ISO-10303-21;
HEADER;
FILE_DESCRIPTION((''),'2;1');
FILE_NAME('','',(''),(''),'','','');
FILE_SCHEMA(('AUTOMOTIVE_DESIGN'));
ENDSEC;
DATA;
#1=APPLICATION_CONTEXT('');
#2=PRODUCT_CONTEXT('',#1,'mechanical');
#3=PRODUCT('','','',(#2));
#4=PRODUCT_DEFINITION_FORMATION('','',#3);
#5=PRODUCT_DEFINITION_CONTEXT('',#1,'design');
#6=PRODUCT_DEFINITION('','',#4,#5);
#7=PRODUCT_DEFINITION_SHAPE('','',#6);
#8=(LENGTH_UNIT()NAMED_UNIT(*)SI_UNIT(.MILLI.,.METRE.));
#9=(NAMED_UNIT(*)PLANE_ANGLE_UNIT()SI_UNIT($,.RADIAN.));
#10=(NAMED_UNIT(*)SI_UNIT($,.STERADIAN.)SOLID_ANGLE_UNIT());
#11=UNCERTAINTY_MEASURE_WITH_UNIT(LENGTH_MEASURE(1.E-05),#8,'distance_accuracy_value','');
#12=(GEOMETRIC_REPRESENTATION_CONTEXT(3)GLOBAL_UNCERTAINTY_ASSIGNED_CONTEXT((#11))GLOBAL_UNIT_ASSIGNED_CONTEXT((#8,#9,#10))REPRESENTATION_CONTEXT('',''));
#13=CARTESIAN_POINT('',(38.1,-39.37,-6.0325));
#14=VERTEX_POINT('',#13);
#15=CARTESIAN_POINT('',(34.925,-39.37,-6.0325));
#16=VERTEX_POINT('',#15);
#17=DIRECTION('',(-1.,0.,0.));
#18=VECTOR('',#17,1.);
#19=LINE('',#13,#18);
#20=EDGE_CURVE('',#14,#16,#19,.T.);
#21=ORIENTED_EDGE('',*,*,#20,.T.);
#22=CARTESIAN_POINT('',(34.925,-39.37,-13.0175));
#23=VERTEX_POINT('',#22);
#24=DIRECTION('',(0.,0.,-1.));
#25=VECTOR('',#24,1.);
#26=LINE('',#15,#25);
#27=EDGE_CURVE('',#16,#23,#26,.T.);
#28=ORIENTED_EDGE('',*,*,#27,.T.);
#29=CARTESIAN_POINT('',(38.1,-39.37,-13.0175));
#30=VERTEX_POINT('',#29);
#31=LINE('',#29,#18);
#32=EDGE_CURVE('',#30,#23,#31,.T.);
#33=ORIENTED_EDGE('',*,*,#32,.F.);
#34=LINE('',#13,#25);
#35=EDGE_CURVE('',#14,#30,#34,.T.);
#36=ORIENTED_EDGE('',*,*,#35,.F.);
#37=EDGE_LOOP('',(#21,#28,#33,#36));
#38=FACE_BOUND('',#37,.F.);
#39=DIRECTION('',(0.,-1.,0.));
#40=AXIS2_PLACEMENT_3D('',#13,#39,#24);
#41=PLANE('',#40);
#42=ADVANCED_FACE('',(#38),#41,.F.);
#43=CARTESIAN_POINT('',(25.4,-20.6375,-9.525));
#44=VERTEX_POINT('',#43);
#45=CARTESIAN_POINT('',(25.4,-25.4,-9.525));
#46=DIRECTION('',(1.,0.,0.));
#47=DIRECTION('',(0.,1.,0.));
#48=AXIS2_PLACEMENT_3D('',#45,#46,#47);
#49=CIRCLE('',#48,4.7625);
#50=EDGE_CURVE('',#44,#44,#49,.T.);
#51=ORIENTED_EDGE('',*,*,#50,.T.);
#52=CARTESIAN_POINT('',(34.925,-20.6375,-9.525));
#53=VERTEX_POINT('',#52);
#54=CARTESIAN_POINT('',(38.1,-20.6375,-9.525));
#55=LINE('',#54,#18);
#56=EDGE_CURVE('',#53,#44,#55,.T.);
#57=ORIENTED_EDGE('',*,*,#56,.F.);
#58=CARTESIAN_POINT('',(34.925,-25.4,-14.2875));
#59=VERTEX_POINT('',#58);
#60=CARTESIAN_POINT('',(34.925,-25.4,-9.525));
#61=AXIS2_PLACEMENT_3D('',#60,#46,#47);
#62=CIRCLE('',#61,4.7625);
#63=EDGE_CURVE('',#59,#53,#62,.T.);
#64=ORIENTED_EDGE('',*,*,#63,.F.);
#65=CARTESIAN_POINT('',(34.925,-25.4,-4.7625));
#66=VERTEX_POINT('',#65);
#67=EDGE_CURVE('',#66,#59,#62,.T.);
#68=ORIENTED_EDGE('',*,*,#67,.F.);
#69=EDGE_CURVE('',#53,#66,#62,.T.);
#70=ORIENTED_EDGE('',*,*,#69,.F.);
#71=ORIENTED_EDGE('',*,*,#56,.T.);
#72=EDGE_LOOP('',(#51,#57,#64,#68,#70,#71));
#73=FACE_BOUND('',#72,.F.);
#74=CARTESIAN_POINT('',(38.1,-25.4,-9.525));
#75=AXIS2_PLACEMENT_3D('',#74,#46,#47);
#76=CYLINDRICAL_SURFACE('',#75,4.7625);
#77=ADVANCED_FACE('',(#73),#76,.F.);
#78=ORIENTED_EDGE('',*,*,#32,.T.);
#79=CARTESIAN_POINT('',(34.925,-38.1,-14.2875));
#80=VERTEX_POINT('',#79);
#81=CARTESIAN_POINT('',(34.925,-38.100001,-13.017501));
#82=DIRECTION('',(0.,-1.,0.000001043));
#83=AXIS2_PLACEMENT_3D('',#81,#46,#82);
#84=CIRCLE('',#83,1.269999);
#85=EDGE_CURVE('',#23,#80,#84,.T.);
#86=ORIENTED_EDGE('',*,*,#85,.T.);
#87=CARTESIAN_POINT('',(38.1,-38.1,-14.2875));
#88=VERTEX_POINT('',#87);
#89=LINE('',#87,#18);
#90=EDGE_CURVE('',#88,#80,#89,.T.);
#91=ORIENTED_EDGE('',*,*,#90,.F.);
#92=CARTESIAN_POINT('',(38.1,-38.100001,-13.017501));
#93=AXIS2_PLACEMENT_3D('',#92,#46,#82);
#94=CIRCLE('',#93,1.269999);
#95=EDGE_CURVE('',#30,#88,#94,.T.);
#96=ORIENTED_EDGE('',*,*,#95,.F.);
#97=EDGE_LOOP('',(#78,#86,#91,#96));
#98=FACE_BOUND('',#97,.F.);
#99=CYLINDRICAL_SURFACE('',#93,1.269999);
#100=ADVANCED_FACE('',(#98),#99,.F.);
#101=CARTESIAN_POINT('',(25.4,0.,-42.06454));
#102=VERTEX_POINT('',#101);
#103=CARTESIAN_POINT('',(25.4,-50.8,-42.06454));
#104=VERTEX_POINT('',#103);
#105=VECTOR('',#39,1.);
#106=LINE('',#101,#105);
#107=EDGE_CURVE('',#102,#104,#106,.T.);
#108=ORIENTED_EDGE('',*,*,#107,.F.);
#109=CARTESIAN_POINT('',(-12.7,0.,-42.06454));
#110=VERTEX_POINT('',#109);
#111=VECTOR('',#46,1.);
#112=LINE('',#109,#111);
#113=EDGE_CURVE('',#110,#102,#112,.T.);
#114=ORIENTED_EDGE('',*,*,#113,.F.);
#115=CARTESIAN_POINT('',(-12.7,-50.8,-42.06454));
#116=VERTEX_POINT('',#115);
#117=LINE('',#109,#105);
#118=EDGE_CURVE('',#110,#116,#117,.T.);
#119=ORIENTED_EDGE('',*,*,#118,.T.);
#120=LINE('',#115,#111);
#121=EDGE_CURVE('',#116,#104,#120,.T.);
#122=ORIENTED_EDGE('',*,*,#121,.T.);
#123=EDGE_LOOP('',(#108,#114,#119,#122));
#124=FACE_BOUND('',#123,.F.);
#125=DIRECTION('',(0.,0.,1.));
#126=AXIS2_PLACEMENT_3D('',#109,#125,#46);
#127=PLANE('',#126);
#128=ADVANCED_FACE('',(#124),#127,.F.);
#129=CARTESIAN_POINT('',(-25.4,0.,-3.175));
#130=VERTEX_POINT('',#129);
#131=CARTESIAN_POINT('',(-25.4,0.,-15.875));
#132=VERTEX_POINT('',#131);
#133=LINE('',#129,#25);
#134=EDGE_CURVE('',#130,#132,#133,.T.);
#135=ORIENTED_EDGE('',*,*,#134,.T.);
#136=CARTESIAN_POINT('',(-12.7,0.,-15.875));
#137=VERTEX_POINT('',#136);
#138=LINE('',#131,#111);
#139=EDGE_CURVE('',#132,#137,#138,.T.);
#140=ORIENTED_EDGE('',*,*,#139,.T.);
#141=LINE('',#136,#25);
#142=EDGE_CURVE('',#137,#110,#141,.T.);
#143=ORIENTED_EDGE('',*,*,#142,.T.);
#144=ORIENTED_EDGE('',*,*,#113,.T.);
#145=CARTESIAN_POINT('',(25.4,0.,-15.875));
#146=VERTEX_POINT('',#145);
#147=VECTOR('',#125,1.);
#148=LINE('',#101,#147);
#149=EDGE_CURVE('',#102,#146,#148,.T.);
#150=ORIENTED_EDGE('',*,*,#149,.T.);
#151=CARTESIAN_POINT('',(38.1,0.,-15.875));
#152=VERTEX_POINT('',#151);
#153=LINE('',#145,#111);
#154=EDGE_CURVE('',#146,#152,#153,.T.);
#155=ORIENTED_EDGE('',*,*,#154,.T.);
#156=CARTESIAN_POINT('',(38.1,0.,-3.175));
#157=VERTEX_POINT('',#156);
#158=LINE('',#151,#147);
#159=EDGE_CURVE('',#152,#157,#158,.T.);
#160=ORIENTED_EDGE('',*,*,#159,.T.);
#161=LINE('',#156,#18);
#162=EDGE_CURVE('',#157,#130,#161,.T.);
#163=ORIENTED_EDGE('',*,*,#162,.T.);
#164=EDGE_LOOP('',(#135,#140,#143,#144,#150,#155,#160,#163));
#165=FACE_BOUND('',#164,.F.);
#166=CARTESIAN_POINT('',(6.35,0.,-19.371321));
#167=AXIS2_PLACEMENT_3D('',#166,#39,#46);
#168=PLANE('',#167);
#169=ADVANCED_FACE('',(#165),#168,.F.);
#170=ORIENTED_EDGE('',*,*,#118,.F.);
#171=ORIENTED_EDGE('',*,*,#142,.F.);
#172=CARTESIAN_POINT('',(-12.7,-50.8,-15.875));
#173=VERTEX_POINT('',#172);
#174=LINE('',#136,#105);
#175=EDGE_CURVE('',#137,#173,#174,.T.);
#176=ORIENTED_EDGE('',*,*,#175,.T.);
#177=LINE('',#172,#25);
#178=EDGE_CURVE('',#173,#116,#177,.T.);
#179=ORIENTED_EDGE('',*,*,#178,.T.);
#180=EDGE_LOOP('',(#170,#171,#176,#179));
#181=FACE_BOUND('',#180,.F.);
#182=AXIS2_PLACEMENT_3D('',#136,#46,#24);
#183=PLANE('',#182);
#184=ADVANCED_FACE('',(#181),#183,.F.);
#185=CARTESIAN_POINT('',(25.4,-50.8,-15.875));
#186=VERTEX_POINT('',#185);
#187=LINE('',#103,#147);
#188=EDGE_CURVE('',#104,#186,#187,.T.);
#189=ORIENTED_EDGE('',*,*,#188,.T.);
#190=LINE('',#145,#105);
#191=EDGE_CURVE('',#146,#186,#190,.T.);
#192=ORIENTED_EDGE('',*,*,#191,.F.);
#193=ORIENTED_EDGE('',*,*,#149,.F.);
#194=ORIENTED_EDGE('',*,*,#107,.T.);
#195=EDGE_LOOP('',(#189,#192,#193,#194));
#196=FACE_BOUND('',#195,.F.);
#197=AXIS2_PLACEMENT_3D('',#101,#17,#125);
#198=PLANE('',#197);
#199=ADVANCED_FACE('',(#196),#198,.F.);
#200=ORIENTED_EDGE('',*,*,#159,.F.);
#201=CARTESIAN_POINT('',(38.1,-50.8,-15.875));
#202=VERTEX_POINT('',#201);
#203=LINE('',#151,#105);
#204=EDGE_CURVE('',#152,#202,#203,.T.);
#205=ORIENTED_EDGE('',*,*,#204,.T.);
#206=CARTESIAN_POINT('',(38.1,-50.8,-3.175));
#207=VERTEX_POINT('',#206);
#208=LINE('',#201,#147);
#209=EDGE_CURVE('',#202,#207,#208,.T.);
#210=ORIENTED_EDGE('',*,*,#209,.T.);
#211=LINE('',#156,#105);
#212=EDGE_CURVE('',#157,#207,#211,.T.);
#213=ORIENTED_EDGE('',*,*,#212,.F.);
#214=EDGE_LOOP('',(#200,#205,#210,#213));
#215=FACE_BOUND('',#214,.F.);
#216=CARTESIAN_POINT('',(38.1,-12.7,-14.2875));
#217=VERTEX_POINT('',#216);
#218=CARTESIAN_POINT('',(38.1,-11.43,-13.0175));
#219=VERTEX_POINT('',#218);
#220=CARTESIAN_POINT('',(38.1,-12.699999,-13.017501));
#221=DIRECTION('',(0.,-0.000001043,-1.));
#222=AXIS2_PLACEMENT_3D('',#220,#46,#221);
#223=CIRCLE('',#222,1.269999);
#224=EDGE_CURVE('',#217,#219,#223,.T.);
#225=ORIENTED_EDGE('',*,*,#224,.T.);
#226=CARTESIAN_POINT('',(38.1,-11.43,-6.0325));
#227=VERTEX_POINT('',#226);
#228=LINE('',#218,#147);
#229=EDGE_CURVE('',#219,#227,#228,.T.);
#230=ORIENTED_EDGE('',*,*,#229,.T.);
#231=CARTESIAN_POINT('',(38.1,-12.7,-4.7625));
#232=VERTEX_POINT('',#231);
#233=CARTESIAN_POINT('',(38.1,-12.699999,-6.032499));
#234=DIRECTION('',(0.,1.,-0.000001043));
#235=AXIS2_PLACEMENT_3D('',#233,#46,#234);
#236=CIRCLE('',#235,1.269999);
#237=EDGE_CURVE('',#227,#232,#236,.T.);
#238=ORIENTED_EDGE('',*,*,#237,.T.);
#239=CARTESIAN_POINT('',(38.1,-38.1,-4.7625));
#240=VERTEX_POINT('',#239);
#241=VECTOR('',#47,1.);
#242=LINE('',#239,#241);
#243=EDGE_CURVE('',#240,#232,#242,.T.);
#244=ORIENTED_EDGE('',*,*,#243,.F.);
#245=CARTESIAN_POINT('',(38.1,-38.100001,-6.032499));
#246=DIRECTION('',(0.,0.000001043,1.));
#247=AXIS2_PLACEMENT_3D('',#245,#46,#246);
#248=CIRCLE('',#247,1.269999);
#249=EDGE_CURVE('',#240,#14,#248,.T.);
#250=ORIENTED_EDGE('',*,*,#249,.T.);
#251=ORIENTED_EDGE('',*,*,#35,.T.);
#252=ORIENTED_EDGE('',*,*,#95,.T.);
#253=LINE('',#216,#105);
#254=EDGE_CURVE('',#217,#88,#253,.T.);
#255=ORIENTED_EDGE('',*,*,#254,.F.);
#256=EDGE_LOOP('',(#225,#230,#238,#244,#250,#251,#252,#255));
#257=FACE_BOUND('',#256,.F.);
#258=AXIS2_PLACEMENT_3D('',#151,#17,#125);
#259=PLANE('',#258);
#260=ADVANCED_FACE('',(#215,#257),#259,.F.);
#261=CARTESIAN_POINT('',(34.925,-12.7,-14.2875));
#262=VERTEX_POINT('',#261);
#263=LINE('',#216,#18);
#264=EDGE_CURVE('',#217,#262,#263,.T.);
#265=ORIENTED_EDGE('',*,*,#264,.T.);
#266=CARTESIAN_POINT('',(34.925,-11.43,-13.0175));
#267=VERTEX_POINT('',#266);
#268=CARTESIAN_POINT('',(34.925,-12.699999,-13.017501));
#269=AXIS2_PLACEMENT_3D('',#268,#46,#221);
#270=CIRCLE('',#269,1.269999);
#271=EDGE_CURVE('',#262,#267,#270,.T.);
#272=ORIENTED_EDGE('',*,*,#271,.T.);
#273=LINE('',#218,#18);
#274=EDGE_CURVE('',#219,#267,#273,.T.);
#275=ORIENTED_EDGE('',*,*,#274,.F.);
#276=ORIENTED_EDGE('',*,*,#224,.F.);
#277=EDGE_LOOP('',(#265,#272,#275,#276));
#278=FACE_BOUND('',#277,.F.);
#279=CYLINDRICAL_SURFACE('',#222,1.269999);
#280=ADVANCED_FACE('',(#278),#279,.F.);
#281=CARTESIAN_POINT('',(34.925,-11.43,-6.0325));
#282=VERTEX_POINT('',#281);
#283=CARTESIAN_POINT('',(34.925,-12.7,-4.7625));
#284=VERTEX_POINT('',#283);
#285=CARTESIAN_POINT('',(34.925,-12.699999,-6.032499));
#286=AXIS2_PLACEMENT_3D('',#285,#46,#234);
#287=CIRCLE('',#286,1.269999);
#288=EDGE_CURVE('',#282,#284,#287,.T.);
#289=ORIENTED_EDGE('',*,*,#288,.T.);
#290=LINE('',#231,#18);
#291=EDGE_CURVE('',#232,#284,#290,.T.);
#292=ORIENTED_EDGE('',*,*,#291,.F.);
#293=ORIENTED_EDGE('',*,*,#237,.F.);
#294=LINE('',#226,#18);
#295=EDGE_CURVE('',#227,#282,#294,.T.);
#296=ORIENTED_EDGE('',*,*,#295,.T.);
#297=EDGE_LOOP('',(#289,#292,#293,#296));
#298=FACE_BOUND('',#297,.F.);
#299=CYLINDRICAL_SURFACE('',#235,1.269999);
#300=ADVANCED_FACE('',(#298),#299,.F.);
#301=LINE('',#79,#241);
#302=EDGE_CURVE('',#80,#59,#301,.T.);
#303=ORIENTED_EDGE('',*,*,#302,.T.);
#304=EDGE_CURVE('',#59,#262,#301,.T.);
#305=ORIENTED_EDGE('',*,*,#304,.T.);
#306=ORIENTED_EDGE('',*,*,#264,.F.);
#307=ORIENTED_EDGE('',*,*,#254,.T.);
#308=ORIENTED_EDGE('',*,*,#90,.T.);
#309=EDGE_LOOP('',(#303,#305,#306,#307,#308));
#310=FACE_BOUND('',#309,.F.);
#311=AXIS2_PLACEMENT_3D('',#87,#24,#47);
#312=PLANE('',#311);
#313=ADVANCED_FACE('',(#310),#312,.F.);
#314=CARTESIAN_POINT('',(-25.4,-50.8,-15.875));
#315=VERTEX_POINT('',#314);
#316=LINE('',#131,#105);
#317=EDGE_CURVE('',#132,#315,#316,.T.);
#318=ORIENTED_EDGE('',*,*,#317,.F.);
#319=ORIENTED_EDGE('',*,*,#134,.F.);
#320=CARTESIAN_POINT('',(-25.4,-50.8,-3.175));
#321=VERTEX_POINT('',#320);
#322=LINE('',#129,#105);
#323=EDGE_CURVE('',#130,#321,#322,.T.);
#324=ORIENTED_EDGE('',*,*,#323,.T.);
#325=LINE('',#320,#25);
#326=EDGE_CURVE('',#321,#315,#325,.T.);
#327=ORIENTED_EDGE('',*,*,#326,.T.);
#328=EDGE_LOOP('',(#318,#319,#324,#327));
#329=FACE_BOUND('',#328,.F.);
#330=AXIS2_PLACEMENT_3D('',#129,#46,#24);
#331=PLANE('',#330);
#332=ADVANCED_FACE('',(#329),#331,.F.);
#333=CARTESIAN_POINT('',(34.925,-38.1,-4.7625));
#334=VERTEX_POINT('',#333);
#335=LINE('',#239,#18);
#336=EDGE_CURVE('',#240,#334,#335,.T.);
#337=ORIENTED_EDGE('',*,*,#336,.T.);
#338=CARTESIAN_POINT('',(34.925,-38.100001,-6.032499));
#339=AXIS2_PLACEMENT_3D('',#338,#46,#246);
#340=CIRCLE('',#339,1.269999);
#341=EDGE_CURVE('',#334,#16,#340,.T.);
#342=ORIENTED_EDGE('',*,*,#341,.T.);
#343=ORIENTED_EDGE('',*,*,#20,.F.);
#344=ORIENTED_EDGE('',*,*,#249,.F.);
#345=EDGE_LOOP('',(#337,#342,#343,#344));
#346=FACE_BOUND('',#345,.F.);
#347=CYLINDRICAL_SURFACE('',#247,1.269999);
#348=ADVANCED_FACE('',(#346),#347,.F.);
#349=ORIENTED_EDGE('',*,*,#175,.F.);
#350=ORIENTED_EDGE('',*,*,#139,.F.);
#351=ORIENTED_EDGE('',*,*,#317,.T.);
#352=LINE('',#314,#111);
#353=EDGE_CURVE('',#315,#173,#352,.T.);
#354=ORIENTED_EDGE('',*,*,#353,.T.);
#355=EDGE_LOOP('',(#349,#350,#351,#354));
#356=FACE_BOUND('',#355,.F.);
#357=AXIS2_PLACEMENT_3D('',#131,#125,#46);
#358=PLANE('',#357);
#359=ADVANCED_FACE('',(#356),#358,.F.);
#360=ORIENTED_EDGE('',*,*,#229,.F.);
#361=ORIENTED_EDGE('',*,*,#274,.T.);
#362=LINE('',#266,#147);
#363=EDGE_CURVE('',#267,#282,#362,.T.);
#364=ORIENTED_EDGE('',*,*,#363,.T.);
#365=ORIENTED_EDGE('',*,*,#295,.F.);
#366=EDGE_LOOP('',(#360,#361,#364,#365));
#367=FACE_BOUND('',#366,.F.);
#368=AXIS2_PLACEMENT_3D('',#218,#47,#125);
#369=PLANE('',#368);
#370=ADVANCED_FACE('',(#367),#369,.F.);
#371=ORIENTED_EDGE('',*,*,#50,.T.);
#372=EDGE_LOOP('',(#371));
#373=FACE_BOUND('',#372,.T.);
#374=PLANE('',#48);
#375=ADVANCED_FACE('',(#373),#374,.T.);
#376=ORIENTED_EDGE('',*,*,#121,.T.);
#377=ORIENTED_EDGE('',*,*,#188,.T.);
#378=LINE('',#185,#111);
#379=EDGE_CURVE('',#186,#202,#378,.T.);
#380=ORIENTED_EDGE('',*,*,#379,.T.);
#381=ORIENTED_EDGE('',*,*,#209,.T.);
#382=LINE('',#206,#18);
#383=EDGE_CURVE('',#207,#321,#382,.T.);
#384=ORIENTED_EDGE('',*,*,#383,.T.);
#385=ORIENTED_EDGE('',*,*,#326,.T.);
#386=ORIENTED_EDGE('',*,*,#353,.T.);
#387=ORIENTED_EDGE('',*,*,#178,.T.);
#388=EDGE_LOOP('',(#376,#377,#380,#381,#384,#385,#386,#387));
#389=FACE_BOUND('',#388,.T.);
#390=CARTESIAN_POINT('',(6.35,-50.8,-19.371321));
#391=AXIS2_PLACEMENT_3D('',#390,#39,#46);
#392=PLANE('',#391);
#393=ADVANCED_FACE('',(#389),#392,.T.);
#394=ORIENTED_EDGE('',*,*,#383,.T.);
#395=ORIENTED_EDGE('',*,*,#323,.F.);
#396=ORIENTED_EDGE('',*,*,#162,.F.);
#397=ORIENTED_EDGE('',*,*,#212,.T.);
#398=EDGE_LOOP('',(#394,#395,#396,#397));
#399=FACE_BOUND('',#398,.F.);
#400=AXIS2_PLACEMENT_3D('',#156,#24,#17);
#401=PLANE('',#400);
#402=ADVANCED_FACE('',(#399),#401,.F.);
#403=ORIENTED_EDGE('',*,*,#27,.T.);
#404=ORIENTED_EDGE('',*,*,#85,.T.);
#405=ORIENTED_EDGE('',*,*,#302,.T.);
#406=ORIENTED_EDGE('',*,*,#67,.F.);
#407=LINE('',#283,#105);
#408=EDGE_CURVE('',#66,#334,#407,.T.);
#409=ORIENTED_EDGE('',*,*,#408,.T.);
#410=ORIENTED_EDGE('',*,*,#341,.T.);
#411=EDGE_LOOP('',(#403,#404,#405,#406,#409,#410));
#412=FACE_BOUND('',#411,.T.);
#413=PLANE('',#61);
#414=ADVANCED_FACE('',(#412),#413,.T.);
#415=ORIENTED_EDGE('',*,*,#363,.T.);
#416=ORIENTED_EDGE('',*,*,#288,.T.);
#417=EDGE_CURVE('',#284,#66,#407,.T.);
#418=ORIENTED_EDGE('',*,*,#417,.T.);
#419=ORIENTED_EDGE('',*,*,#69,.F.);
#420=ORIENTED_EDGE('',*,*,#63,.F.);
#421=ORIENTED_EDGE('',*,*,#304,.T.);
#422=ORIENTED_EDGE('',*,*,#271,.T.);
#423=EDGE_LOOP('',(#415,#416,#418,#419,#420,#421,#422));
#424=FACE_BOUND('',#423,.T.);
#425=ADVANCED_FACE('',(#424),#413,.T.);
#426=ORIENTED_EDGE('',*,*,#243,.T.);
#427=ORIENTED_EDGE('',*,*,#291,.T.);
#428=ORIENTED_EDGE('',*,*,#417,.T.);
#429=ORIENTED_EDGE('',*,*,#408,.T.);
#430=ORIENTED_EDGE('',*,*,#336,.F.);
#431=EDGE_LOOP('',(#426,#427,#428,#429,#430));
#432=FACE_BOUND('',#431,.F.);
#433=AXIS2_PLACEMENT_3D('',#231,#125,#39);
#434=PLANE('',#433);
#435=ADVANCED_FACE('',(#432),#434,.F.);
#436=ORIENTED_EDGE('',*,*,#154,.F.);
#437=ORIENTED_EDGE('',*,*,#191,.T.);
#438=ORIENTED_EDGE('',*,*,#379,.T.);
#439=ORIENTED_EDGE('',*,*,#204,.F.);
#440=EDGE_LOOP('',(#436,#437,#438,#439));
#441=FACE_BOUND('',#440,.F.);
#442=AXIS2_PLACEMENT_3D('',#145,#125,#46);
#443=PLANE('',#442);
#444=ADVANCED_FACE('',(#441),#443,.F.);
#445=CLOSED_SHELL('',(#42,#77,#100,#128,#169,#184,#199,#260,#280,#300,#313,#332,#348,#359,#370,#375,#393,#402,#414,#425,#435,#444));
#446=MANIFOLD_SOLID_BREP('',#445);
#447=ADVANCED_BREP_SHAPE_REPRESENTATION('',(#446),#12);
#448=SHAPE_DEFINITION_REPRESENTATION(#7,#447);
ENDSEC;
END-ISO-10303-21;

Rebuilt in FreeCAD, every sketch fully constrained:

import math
import FreeCAD as App
import Part
import Sketcher
Q = App.Units.Quantity

doc = App.newDocument("Part")
body = doc.addObject("PartDesign::Body", "Body")

sketch1 = body.newObject("Sketcher::SketchObject", "Sketch")
sketch1.AttachmentSupport = (doc.getObject("XZ_Plane"), [""])
sketch1.MapMode = "FlatFace"
sketch1.addGeometry([
    Part.LineSegment(App.Vector(38, -16, 0), App.Vector(38, -3, 0)),
    Part.LineSegment(App.Vector(38, -3, 0), App.Vector(-25, -3, 0)),
    Part.LineSegment(App.Vector(-25, -3, 0), App.Vector(-25, -16, 0)),
    Part.LineSegment(App.Vector(-25, -16, 0), App.Vector(-13, -16, 0)),
    Part.LineSegment(App.Vector(-13, -16, 0), App.Vector(-13, -42, 0)),
    Part.LineSegment(App.Vector(-13, -42, 0), App.Vector(25, -42, 0)),
    Part.LineSegment(App.Vector(25, -42, 0), App.Vector(25, -16, 0)),
    Part.LineSegment(App.Vector(25, -16, 0), App.Vector(38, -16, 0)),
], False)
sketch1.addConstraint([
    Sketcher.Constraint("Coincident", 0, 2, 1, 1),
    Sketcher.Constraint("Coincident", 1, 2, 2, 1),
    Sketcher.Constraint("Coincident", 2, 2, 3, 1),
    Sketcher.Constraint("Coincident", 3, 2, 4, 1),
    Sketcher.Constraint("Coincident", 4, 2, 5, 1),
    Sketcher.Constraint("Coincident", 5, 2, 6, 1),
    Sketcher.Constraint("Coincident", 6, 2, 7, 1),
    Sketcher.Constraint("Coincident", 7, 2, 0, 1),
    Sketcher.Constraint("Vertical", 0),
    Sketcher.Constraint("Horizontal", 1),
    Sketcher.Constraint("Vertical", 2),
    Sketcher.Constraint("Horizontal", 3),
    Sketcher.Constraint("Vertical", 4),
    Sketcher.Constraint("Horizontal", 5),
    Sketcher.Constraint("Vertical", 6),
    Sketcher.Constraint("Horizontal", 7),
    Sketcher.Constraint("Symmetric", 2, 2, 6, 2, -2),
    Sketcher.Constraint("Equal", 3, 7),
    Sketcher.Constraint("Equal", 7, 0),
    Sketcher.Constraint("DistanceX", 1, 2, 1, 1, Q("2.5 in")),
    Sketcher.Constraint("DistanceX", 3, 1, 3, 2, Q("0.5 in")),
    Sketcher.Constraint("DistanceY", 0, 2, -1, 1, Q("0.125 in")),
    Sketcher.Constraint("DistanceY", 4, 2, 4, 1, 26.18954),
])
pad1 = body.newObject("PartDesign::Pad", "Pad")
pad1.Profile = sketch1
pad1.Length = Q("2 in")

sketch2 = body.newObject("Sketcher::SketchObject", "Sketch001")
sketch2.AttachmentSupport = (doc.getObject("YZ_Plane"), [""])
sketch2.MapMode = "FlatFace"
sketch2.AttachmentOffset = App.Placement(App.Vector(0, 0, 1.5 * 25.4), App.Rotation())
sketch2.addGeometry(Part.Circle(App.Vector(-25.4, -9.5, 0), App.Vector(0, 0, 1), 4.8), False)
sketch2.addConstraint([
    Sketcher.Constraint("Diameter", 0, Q("0.375 in")),
    Sketcher.Constraint("DistanceX", 0, 3, -1, 1, Q("1 in")),
    Sketcher.Constraint("DistanceY", 0, 3, -1, 1, Q("0.375 in")),
])
pocket1 = body.newObject("PartDesign::Pocket", "Pocket")
pocket1.Profile = sketch2
pocket1.Length = Q("0.5 in")

sketch3 = body.newObject("Sketcher::SketchObject", "Sketch002")
sketch3.AttachmentSupport = (doc.getObject("YZ_Plane"), [""])
sketch3.MapMode = "FlatFace"
sketch3.AttachmentOffset = App.Placement(App.Vector(0, 0, 1.5 * 25.4), App.Rotation())
sketch3.addGeometry([
    Part.LineSegment(App.Vector(-38.1, -14.3, 0), App.Vector(-12.7, -14.3, 0)),
    Part.ArcOfCircle(Part.Circle(App.Vector(-12.7, -13, 0), App.Vector(0, 0, 1), 1.3), math.radians(-90), math.radians(0)),
    Part.LineSegment(App.Vector(-11.4, -13, 0), App.Vector(-11.4, -6, 0)),
    Part.ArcOfCircle(Part.Circle(App.Vector(-12.7, -6, 0), App.Vector(0, 0, 1), 1.3), math.radians(0), math.radians(90)),
    Part.LineSegment(App.Vector(-12.7, -4.8, 0), App.Vector(-38.1, -4.8, 0)),
    Part.ArcOfCircle(Part.Circle(App.Vector(-38.1, -6, 0), App.Vector(0, 0, 1), 1.3), math.radians(90), math.radians(180)),
    Part.LineSegment(App.Vector(-39.4, -6, 0), App.Vector(-39.4, -13, 0)),
    Part.ArcOfCircle(Part.Circle(App.Vector(-38.1, -13, 0), App.Vector(0, 0, 1), 1.3), math.radians(180), math.radians(270)),
], False)
sketch3.addConstraint([
    Sketcher.Constraint("Tangent", 0, 2, 1, 1),
    Sketcher.Constraint("Tangent", 1, 2, 2, 1),
    Sketcher.Constraint("Tangent", 2, 2, 3, 1),
    Sketcher.Constraint("Tangent", 3, 2, 4, 1),
    Sketcher.Constraint("Tangent", 4, 2, 5, 1),
    Sketcher.Constraint("Tangent", 5, 2, 6, 1),
    Sketcher.Constraint("Tangent", 6, 2, 7, 1),
    Sketcher.Constraint("Tangent", 7, 2, 0, 1),
    Sketcher.Constraint("Horizontal", 0),
    Sketcher.Constraint("Vertical", 2),
    Sketcher.Constraint("Horizontal", 4),
    Sketcher.Constraint("Vertical", 6),
    Sketcher.Constraint("Equal", 1, 3),
    Sketcher.Constraint("Equal", 3, 5),
    Sketcher.Constraint("Equal", 5, 7),
    Sketcher.Constraint("DistanceX", 0, 1, 0, 2, Q("1 in")),
    Sketcher.Constraint("Radius", 1, Q("0.0499999 in")),
    Sketcher.Constraint("DistanceX", 1, 3, -1, 1, Q("0.4999999 in")),
    Sketcher.Constraint("DistanceY", 2, 1, 2, 2, Q("0.275 in")),
    Sketcher.Constraint("DistanceY", 0, 2, -1, 1, Q("0.5625 in")),
])
pocket2 = body.newObject("PartDesign::Pocket", "Pocket001")
pocket2.Profile = sketch3
pocket2.Length = Q("0.125 in")

doc.recompute()
